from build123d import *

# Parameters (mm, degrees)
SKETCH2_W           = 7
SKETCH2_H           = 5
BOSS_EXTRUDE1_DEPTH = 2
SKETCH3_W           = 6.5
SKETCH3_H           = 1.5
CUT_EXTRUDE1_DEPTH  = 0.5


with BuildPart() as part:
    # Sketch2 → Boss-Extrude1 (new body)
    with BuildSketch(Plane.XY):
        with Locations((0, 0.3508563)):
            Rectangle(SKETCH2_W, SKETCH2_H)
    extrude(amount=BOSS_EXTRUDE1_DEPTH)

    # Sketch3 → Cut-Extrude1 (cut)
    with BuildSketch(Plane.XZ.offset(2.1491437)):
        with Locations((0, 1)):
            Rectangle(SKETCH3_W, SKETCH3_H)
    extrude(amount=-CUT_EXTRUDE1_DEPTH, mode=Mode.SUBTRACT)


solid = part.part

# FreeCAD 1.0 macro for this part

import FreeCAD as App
import Part
import Sketcher

V = App.Vector
Q = App.Units.Quantity

doc = App.newDocument("Part")
params = doc.addObject("Spreadsheet::Sheet", "Params")
for row, (alias, value) in enumerate([
    ("sketch1_width", "7 mm"),
    ("sketch1_height", "5 mm"),
    ("pad1_length", "2 mm"),
    ("sketch2_width", "6.5 mm"),
    ("sketch2_height", "1.5 mm"),
    ("pocket1_length", "0.5 mm"),
], start=1):
    params.set(f"A{row}", alias)
    params.set(f"B{row}", "=" + value)
    params.setAlias(f"B{row}", alias)

body = doc.addObject("PartDesign::Body", "Body")

# Sketch on XY plane
sketch1 = doc.addObject("Sketcher::SketchObject", "Sketch")
body.addObject(sketch1)
sketch1.AttachmentSupport = (doc.XY_Plane, [""])
sketch1.MapMode = "FlatFace"
sketch1.addGeometry([
    Part.LineSegment(V(-4, 3, 0), V(-4, -2, 0)),
    Part.LineSegment(V(-4, -2, 0), V(4, -2, 0)),
    Part.LineSegment(V(4, -2, 0), V(4, 3, 0)),
    Part.LineSegment(V(4, 3, 0), V(-4, 3, 0)),
], False)
sketch1.addConstraint([
    Sketcher.Constraint("Coincident", 0, 2, 1, 1),
    Sketcher.Constraint("Coincident", 1, 2, 2, 1),
    Sketcher.Constraint("Coincident", 2, 2, 3, 1),
    Sketcher.Constraint("Coincident", 3, 2, 0, 1),
    Sketcher.Constraint("Vertical", 0),
    Sketcher.Constraint("Horizontal", 1),
    Sketcher.Constraint("Vertical", 2),
    Sketcher.Constraint("Horizontal", 3),
    Sketcher.Constraint("DistanceX", 1, 1, 1, 2, Q("7 mm")),
    Sketcher.Constraint("DistanceY", 0, 2, 0, 1, Q("5 mm")),
    Sketcher.Constraint("DistanceX", 0, 2, -1, 1, Q("3.5 mm")),
    Sketcher.Constraint("DistanceY", 0, 2, -1, 1, Q("2.149144 mm")),
])
sketch1.setExpression("Constraints[8]", "Params.sketch1_width")
sketch1.setExpression("Constraints[9]", "Params.sketch1_height")
pad1 = doc.addObject("PartDesign::Pad", "Pad")
body.addObject(pad1)
pad1.Profile = sketch1
pad1.setExpression("Length", "Params.pad1_length")

# Sketch on XZ plane
sketch2 = doc.addObject("Sketcher::SketchObject", "Sketch001")
body.addObject(sketch2)
sketch2.AttachmentSupport = (doc.XZ_Plane, [""])
sketch2.MapMode = "FlatFace"
sketch2.AttachmentOffset = App.Placement(V(0, 0, 2.149144), App.Rotation())
sketch2.addGeometry([
    Part.LineSegment(V(-3.2, 1.8, 0), V(-3.2, 0.2, 0)),
    Part.LineSegment(V(-3.2, 0.2, 0), V(3.2, 0.2, 0)),
    Part.LineSegment(V(3.2, 0.2, 0), V(3.2, 1.8, 0)),
    Part.LineSegment(V(3.2, 1.8, 0), V(-3.2, 1.8, 0)),
], False)
sketch2.addConstraint([
    Sketcher.Constraint("Coincident", 0, 2, 1, 1),
    Sketcher.Constraint("Coincident", 1, 2, 2, 1),
    Sketcher.Constraint("Coincident", 2, 2, 3, 1),
    Sketcher.Constraint("Coincident", 3, 2, 0, 1),
    Sketcher.Constraint("Vertical", 0),
    Sketcher.Constraint("Horizontal", 1),
    Sketcher.Constraint("Vertical", 2),
    Sketcher.Constraint("Horizontal", 3),
    Sketcher.Constraint("DistanceX", 1, 1, 1, 2, Q("6.5 mm")),
    Sketcher.Constraint("DistanceY", 0, 2, 0, 1, Q("1.5 mm")),
    Sketcher.Constraint("DistanceX", 0, 2, -1, 1, Q("3.25 mm")),
    Sketcher.Constraint("DistanceY", -1, 1, 0, 2, Q("0.25 mm")),
])
sketch2.setExpression("Constraints[8]", "Params.sketch2_width")
sketch2.setExpression("Constraints[9]", "Params.sketch2_height")
pocket1 = doc.addObject("PartDesign::Pocket", "Pocket")
body.addObject(pocket1)
pocket1.Profile = sketch2
pocket1.setExpression("Length", "Params.pocket1_length")

doc.recompute()
